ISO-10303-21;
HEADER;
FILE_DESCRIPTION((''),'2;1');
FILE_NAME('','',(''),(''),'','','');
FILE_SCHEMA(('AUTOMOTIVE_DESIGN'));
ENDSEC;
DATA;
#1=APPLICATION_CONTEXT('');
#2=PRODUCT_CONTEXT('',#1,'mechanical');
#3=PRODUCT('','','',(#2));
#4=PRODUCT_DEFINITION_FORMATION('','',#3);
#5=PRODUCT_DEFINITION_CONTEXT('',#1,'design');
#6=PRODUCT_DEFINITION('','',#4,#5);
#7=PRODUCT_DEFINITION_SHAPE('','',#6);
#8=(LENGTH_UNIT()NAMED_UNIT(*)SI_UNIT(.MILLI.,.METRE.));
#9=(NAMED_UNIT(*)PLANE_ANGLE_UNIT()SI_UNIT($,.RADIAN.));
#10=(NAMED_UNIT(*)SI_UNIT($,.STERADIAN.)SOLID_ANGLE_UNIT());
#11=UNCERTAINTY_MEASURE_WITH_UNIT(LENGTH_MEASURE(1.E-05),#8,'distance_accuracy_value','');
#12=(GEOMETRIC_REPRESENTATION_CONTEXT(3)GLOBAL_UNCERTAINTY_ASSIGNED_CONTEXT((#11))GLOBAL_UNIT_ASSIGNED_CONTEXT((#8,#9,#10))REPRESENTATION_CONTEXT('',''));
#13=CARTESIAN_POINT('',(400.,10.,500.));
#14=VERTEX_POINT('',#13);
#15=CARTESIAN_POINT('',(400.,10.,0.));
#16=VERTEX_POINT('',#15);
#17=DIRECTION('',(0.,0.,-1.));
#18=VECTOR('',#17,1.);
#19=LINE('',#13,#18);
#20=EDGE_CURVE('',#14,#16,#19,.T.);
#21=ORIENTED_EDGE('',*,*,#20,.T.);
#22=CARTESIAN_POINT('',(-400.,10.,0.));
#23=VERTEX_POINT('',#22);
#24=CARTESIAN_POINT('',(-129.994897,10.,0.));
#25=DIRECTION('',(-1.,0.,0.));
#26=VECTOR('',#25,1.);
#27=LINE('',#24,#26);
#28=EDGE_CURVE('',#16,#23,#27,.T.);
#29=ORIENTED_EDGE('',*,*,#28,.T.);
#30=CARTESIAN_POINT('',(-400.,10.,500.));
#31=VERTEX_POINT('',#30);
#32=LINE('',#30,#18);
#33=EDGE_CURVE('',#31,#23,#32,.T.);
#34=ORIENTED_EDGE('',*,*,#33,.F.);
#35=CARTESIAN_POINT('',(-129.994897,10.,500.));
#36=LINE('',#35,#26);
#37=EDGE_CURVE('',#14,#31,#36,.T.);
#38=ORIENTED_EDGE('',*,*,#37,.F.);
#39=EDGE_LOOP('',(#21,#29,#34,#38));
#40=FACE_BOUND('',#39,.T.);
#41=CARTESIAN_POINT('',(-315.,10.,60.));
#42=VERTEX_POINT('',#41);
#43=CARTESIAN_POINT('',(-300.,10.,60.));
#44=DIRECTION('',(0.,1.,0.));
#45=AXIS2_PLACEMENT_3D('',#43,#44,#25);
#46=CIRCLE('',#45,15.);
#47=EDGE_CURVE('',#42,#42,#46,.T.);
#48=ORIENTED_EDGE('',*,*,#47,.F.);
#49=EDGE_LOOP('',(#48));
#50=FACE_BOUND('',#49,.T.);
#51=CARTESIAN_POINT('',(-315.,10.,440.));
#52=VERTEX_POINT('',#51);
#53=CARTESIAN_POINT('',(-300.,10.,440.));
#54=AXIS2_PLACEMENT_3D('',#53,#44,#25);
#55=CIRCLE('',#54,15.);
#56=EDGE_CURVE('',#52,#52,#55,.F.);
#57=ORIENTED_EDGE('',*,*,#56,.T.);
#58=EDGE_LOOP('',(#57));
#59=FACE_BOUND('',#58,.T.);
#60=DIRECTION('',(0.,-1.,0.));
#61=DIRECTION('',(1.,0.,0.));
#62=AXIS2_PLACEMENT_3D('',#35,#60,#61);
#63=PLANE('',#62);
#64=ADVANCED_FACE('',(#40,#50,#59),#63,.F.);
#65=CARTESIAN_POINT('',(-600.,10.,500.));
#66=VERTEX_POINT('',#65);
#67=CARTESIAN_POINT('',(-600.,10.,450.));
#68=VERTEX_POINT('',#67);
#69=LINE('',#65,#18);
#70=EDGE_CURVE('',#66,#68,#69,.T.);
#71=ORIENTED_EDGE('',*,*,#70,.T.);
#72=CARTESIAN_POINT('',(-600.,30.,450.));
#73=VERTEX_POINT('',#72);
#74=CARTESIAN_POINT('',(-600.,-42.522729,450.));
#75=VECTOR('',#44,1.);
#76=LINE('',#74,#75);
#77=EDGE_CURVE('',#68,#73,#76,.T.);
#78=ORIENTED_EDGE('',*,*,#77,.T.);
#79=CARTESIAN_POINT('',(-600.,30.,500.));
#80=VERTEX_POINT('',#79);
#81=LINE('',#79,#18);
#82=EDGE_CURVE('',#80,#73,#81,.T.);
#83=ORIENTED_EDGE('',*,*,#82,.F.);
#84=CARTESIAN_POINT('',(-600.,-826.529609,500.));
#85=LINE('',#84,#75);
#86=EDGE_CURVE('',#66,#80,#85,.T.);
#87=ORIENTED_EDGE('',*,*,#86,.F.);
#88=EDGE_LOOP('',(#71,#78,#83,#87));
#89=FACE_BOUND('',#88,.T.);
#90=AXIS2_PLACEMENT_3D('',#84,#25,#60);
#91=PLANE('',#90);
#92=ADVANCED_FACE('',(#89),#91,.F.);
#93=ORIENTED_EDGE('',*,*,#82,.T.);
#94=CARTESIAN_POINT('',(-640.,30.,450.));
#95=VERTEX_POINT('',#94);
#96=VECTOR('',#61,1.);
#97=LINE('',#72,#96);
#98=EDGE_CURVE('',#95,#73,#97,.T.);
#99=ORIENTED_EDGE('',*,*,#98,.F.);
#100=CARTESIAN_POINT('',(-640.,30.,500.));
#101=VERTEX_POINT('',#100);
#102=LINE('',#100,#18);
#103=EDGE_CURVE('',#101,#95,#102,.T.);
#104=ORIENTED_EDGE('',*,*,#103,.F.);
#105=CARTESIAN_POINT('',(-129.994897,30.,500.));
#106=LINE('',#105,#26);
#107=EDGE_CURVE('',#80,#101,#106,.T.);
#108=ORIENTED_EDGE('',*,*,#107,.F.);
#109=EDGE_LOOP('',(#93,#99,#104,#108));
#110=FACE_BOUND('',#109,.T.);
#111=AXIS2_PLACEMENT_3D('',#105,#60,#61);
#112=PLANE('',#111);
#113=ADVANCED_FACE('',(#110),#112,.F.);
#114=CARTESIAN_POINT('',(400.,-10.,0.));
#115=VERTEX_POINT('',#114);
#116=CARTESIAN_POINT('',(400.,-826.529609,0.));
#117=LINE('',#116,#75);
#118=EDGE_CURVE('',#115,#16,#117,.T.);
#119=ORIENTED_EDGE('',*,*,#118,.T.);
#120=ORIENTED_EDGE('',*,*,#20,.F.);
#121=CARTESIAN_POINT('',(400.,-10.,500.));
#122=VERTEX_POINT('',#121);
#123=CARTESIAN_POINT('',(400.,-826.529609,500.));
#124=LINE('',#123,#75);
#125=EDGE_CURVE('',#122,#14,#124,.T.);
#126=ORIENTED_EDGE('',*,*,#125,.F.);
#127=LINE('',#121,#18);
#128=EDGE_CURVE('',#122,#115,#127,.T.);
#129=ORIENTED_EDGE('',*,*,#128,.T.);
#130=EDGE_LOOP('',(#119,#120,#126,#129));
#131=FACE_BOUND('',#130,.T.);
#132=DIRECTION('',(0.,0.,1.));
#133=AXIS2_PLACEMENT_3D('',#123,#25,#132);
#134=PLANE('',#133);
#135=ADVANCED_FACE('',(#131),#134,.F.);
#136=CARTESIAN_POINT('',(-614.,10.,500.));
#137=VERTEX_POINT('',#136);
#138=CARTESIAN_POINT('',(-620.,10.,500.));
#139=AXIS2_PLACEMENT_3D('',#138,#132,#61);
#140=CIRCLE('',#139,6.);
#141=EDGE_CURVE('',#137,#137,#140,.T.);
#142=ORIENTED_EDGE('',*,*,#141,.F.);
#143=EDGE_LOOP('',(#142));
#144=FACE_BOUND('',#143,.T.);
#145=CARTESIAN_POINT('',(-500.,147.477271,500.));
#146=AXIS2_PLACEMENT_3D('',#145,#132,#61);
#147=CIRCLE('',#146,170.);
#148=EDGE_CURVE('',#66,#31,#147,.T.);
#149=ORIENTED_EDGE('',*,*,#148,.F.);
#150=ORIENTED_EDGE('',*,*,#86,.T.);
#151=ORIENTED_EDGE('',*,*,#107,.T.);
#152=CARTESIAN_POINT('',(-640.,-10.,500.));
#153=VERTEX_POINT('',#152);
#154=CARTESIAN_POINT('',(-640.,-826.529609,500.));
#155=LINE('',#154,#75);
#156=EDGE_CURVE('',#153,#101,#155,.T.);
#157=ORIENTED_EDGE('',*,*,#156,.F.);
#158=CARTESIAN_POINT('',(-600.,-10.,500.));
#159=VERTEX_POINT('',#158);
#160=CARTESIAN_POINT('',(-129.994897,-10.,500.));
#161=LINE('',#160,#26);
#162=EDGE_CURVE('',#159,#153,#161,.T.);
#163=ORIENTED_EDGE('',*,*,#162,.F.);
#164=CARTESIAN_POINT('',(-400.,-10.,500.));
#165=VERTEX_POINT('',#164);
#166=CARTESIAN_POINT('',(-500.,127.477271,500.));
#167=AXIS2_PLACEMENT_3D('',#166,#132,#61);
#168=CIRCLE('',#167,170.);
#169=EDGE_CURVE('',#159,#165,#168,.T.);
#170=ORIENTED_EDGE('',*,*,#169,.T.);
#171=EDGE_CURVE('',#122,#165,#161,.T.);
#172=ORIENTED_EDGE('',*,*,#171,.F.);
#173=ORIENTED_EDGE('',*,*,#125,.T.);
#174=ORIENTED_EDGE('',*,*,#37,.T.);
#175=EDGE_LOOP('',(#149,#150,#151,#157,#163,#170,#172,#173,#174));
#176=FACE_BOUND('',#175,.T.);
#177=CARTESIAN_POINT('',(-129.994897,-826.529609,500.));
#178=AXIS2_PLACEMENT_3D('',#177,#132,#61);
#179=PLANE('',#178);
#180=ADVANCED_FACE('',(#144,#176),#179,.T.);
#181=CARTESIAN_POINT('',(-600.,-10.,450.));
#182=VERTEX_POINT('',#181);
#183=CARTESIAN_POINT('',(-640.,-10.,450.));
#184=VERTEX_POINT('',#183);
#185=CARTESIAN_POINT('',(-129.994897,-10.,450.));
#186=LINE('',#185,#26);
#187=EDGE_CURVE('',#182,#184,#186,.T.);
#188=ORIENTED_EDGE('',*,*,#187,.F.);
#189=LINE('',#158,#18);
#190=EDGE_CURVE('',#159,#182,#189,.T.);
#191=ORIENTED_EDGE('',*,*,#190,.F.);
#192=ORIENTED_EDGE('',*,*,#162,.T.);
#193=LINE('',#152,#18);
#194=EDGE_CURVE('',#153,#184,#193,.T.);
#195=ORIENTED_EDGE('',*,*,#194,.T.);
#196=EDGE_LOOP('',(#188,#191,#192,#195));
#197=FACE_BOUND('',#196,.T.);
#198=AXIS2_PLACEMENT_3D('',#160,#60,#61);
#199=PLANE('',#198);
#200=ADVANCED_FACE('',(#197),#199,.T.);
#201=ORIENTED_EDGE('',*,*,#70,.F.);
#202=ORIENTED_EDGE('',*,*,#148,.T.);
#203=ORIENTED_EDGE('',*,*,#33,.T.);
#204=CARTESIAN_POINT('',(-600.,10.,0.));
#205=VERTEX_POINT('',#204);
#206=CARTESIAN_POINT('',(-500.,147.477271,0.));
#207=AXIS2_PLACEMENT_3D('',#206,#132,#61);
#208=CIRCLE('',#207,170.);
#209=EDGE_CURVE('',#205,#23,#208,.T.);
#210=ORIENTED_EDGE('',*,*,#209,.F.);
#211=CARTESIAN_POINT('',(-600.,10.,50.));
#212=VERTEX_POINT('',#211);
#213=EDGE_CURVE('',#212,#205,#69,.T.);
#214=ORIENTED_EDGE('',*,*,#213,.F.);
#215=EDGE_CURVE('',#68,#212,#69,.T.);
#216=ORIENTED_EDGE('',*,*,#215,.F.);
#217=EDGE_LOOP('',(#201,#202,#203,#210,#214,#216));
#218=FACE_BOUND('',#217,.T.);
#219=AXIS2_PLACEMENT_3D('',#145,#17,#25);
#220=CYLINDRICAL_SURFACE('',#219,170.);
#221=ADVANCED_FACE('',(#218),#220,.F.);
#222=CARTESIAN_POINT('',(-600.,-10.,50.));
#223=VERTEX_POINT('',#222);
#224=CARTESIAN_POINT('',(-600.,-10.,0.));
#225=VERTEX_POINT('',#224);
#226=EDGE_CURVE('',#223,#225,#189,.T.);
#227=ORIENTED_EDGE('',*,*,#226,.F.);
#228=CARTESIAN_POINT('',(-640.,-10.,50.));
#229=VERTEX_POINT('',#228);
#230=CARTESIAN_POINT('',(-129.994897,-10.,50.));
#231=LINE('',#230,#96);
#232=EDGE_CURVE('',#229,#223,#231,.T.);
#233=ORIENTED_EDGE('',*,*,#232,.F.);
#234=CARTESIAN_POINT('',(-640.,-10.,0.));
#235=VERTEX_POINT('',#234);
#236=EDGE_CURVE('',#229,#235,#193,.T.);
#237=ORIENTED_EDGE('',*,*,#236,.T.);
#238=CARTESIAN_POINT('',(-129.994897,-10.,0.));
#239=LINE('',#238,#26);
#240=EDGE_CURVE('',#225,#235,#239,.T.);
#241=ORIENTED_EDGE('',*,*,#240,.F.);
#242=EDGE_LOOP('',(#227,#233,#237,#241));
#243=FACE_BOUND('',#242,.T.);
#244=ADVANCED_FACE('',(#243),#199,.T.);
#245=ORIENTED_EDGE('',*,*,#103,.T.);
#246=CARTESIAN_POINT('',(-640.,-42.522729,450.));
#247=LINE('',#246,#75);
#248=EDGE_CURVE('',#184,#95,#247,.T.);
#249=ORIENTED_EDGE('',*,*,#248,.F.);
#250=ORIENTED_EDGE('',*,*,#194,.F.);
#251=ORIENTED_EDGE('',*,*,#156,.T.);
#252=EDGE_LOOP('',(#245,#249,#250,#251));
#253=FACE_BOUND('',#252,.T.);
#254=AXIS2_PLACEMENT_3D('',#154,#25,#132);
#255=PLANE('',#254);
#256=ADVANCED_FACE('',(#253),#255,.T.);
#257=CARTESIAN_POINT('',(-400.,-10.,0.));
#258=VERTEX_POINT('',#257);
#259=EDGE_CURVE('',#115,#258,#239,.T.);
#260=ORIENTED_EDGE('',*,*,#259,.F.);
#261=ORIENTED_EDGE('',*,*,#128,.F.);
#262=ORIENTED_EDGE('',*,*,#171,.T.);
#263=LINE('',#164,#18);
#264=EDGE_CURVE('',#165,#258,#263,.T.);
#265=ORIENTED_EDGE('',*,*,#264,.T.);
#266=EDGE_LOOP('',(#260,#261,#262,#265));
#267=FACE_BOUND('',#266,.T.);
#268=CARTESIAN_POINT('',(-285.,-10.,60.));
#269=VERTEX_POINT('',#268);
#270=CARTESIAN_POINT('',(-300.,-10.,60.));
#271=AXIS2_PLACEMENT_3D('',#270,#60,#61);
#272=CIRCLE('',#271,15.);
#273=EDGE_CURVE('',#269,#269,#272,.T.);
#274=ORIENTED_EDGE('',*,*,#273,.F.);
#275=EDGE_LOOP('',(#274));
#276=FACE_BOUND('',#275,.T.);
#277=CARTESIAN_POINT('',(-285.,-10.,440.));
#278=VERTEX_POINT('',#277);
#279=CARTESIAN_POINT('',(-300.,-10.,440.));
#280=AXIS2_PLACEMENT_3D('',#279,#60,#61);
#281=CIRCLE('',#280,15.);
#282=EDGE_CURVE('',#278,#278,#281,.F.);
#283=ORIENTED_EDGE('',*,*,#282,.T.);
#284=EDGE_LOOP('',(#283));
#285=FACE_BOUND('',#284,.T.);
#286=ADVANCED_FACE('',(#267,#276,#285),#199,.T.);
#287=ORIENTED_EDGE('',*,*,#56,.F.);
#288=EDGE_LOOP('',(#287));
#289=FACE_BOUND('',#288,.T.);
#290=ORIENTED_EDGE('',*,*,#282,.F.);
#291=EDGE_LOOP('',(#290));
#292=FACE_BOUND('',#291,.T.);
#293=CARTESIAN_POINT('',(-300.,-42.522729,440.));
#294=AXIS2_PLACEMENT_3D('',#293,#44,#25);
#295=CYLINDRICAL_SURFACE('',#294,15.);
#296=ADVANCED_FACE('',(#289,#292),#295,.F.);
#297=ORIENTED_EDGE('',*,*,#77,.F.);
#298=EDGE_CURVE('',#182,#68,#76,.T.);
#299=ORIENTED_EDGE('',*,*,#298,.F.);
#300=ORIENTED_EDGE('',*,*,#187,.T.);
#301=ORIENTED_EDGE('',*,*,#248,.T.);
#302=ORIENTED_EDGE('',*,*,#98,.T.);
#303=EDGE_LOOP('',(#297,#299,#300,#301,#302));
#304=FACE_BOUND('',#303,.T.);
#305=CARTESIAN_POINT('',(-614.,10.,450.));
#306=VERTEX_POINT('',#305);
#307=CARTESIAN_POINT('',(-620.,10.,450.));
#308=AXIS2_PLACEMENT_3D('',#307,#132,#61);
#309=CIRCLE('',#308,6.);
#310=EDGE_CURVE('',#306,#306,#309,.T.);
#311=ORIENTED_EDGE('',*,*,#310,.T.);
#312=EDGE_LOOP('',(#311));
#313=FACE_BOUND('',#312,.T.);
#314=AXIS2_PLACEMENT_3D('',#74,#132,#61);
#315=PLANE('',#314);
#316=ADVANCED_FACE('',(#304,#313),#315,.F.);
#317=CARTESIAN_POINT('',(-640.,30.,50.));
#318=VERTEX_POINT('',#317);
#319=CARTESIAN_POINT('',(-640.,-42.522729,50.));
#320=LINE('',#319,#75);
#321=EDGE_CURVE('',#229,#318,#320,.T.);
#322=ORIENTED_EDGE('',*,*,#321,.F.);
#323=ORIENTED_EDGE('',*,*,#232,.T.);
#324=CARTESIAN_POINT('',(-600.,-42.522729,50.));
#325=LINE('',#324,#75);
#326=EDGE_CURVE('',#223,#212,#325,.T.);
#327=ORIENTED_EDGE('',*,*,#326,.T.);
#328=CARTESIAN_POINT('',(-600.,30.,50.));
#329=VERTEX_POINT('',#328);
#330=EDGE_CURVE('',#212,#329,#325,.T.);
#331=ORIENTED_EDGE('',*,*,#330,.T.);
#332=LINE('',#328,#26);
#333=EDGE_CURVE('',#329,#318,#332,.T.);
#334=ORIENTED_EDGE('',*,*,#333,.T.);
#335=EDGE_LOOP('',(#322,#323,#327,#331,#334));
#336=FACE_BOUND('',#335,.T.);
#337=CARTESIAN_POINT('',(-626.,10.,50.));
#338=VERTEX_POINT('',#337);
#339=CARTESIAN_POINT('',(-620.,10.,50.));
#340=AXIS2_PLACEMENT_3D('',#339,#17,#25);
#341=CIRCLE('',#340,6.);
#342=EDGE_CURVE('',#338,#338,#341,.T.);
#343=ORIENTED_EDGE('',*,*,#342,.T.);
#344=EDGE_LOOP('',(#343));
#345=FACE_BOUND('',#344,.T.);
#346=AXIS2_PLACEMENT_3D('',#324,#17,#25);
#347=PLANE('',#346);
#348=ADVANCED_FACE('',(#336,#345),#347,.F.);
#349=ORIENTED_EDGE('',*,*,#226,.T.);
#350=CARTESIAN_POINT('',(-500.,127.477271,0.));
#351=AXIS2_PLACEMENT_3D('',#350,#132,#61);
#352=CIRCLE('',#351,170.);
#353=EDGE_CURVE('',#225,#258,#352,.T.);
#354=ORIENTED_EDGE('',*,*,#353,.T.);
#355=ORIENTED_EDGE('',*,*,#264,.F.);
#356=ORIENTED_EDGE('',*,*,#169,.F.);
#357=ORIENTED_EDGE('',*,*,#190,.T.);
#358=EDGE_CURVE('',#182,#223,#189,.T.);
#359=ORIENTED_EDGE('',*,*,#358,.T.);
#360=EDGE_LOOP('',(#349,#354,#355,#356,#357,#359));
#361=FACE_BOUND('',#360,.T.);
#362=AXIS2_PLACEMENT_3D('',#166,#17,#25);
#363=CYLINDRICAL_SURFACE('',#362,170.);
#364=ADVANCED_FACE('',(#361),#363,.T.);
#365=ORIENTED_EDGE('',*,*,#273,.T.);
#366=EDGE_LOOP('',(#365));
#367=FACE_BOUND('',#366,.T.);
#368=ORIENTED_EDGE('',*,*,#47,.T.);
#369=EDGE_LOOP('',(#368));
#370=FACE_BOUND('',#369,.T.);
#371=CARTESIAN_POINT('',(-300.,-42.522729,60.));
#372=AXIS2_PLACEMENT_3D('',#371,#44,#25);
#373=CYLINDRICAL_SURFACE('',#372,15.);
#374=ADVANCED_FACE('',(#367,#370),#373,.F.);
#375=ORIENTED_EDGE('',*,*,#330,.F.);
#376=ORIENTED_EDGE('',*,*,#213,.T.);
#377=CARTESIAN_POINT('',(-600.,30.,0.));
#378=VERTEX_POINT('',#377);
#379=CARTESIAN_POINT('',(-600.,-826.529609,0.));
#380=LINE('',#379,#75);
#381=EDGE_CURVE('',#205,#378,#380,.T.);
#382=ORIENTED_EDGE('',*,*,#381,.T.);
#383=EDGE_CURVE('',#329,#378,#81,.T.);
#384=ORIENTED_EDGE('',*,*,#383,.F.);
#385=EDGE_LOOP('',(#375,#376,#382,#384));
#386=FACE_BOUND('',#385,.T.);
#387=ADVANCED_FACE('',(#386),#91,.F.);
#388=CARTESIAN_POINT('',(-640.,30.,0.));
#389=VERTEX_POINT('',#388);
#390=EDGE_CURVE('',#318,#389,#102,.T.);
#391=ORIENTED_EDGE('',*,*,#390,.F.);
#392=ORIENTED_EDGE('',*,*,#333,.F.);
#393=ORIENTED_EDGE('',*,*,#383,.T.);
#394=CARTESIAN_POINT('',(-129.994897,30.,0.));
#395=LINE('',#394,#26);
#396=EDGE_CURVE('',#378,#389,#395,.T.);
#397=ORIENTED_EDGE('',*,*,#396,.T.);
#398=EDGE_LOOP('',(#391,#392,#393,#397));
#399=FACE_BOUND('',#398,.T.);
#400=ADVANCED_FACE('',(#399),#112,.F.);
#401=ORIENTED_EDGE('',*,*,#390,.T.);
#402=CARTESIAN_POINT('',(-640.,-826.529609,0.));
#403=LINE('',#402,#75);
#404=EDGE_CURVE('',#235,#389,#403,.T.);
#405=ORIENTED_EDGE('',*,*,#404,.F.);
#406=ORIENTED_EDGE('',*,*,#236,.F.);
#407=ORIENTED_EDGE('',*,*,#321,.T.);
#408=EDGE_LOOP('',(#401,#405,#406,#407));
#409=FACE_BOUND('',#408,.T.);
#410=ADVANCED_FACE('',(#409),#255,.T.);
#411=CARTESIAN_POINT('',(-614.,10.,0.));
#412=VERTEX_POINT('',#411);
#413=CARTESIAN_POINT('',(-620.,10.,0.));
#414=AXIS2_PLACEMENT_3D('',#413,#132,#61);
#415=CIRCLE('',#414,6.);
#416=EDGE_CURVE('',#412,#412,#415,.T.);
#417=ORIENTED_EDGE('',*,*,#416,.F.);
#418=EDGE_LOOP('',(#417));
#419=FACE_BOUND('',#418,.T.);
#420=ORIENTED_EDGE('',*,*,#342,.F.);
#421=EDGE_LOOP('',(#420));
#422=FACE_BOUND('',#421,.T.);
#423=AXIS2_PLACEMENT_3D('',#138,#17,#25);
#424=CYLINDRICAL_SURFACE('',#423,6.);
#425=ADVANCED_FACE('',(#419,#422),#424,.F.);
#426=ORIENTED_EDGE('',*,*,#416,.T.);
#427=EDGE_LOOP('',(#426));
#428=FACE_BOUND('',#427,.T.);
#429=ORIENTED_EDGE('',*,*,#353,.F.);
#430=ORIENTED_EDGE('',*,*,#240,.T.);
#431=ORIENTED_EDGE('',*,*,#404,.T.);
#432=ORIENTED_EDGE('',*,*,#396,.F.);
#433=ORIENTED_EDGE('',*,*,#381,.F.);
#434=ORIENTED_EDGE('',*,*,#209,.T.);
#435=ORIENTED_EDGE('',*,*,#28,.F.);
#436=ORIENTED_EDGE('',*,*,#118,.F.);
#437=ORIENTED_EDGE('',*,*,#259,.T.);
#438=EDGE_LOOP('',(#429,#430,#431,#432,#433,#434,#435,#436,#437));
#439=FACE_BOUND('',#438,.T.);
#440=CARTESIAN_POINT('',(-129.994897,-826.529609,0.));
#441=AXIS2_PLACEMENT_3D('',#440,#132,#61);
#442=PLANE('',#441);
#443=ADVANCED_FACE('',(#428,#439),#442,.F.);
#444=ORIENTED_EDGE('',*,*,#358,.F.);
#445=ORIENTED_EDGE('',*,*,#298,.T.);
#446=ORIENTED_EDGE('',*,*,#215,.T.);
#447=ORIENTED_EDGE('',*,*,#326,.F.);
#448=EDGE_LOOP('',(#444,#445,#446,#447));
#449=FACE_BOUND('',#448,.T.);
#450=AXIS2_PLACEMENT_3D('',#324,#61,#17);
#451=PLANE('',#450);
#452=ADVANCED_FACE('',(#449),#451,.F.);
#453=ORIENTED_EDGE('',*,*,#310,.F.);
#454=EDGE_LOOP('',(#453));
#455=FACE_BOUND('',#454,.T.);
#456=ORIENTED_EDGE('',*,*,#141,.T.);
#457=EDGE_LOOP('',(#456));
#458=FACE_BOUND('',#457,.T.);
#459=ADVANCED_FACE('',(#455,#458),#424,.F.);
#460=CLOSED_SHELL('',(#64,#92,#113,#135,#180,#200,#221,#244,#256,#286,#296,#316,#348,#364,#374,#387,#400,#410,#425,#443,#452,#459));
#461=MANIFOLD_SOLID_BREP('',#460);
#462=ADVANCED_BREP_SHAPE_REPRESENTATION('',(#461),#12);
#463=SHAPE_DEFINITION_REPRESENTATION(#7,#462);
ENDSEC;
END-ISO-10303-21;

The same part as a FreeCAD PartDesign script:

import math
import FreeCAD as App
import Part
import Sketcher
from FreeCAD import Vector
Q = App.Units.Quantity

doc = App.newDocument("Part")
body = doc.addObject("PartDesign::Body", "Body")

# Sketch on XY plane
sketch1 = body.newObject("Sketcher::SketchObject", "Sketch")
sketch1.AttachmentSupport = (doc.getObject("XY_Plane"), [""])
sketch1.MapMode = "FlatFace"
sketch1.addGeometry([
    Part.LineSegment(Vector(-400, -10, 0), Vector(400, -10, 0)),  # 0
    Part.LineSegment(Vector(400, -10, 0), Vector(400, 10, 0)),  # 1
    Part.LineSegment(Vector(400, 10, 0), Vector(-400, 10, 0)),  # 2
    Part.ArcOfCircle(Part.Circle(Vector(-500, 147, 0), Vector(0, 0, 1), 170), math.radians(-126), math.radians(-54)),  # 3
    Part.LineSegment(Vector(-600, 10, 0), Vector(-600, 30, 0)),  # 4
    Part.LineSegment(Vector(-600, 30, 0), Vector(-640, 30, 0)),  # 5
    Part.LineSegment(Vector(-640, 30, 0), Vector(-640, -10, 0)),  # 6
    Part.LineSegment(Vector(-640, -10, 0), Vector(-600, -10, 0)),  # 7
    Part.ArcOfCircle(Part.Circle(Vector(-500, 127, 0), Vector(0, 0, 1), 170), math.radians(-126), math.radians(-54)),  # 8
    Part.Circle(Vector(-620, 10, 0), Vector(0, 0, 1), 6),  # 9
], False)
sketch1.addConstraint([
    Sketcher.Constraint("Coincident", 0, 2, 1, 1),
    Sketcher.Constraint("Coincident", 1, 2, 2, 1),
    Sketcher.Constraint("Coincident", 2, 2, 3, 2),
    Sketcher.Constraint("Coincident", 3, 1, 4, 1),
    Sketcher.Constraint("Coincident", 4, 2, 5, 1),
    Sketcher.Constraint("Coincident", 5, 2, 6, 1),
    Sketcher.Constraint("Coincident", 6, 2, 7, 1),
    Sketcher.Constraint("Coincident", 7, 2, 8, 1),
    Sketcher.Constraint("Coincident", 8, 2, 0, 1),
    Sketcher.Constraint("Horizontal", 0),
    Sketcher.Constraint("Vertical", 1),
    Sketcher.Constraint("Horizontal", 2),
    Sketcher.Constraint("Vertical", 4),
    Sketcher.Constraint("Horizontal", 5),
    Sketcher.Constraint("Vertical", 6),
    Sketcher.Constraint("Horizontal", 7),
    Sketcher.Constraint("Equal", 3, 8),
    Sketcher.Constraint("Symmetric", 0, 2, 2, 2, -1, 1),
    Sketcher.Constraint("Symmetric", 3, 1, 7, 2, -1),
    Sketcher.Constraint("Horizontal", 9, 3, 1, 2),
    Sketcher.Constraint("Horizontal", 2, 2, 3, 1),
    Sketcher.Constraint("Vertical", 3, 3, 8, 3),
    Sketcher.Constraint("Equal", 1, 4),
    Sketcher.Constraint("Equal", 7, 6),
    Sketcher.Constraint("Diameter", 9, Q("12 mm")),
    Sketcher.Constraint("Radius", 3, Q("170 mm")),
    Sketcher.Constraint("DistanceX", 0, 1, 0, 2, Q("800 mm")),
    Sketcher.Constraint("DistanceX", 5, 2, 5, 1, Q("40 mm")),
    Sketcher.Constraint("DistanceX", 3, 3, -1, 1, Q("500 mm")),
    Sketcher.Constraint("DistanceX", 9, 3, -1, 1, Q("620 mm")),
])
pad1 = body.newObject("PartDesign::Pad", "Pad")
pad1.Profile = sketch1
pad1.Length = 500

# Sketch on XZ plane
sketch2 = body.newObject("Sketcher::SketchObject", "Sketch001")
sketch2.AttachmentSupport = (doc.getObject("XZ_Plane"), [""])
sketch2.MapMode = "FlatFace"
sketch2.AttachmentOffset = App.Placement(Vector(0, 0, -10), App.Rotation())
sketch2.addGeometry([
    Part.Circle(Vector(-300, 440, 0), Vector(0, 0, 1), 15),
    Part.Circle(Vector(-300, 60, 0), Vector(0, 0, 1), 15),
], False)
sketch2.addConstraint([
    Sketcher.Constraint("Equal", 0, 1),
    Sketcher.Constraint("Vertical", 0, 3, 1, 3),
    Sketcher.Constraint("Diameter", 0, Q("30 mm")),
    Sketcher.Constraint("DistanceX", 0, 3, -1, 1, Q("300 mm")),
    Sketcher.Constraint("DistanceY", -1, 1, 0, 3, Q("440 mm")),
    Sketcher.Constraint("DistanceY", -1, 1, 1, 3, Q("60 mm")),
])
pocket1 = body.newObject("PartDesign::Pocket", "Pocket")
pocket1.Profile = sketch2
pocket1.Type = "ThroughAll"
pocket1.Reversed = True

# Sketch on XZ plane
sketch3 = body.newObject("Sketcher::SketchObject", "Sketch002")
sketch3.AttachmentSupport = (doc.getObject("XZ_Plane"), [""])
sketch3.MapMode = "FlatFace"
sketch3.AttachmentOffset = App.Placement(Vector(0, 0, -30), App.Rotation())
sketch3.addGeometry([
    Part.LineSegment(Vector(-640, 50, 0), Vector(-640, 450, 0)),
    Part.LineSegment(Vector(-640, 450, 0), Vector(-600, 450, 0)),
    Part.LineSegment(Vector(-600, 450, 0), Vector(-600, 50, 0)),
    Part.LineSegment(Vector(-600, 50, 0), Vector(-640, 50, 0)),
], False)
sketch3.addConstraint([
    Sketcher.Constraint("Coincident", 0, 2, 1, 1),
    Sketcher.Constraint("Coincident", 1, 2, 2, 1),
    Sketcher.Constraint("Coincident", 2, 2, 3, 1),
    Sketcher.Constraint("Coincident", 3, 2, 0, 1),
    Sketcher.Constraint("Vertical", 0),
    Sketcher.Constraint("Horizontal", 1),
    Sketcher.Constraint("Vertical", 2),
    Sketcher.Constraint("Horizontal", 3),
    Sketcher.Constraint("DistanceX", 1, 1, 1, 2, Q("40 mm")),
    Sketcher.Constraint("DistanceY", 0, 1, 0, 2, Q("400 mm")),
    Sketcher.Constraint("DistanceX", 0, 2, -1, 1, Q("640 mm")),
    Sketcher.Constraint("DistanceY", -1, 1, 0, 2, Q("450 mm")),
])
pocket2 = body.newObject("PartDesign::Pocket", "Pocket001")
pocket2.Profile = sketch3
pocket2.Type = "ThroughAll"
pocket2.Reversed = True

doc.recompute()
